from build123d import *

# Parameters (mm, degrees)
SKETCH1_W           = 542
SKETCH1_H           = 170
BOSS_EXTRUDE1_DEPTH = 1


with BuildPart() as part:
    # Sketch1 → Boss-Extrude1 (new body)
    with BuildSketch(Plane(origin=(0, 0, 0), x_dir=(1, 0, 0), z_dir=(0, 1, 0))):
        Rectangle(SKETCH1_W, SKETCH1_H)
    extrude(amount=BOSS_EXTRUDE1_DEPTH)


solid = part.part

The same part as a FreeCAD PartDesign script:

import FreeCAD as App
import Part
import Sketcher
Q = App.Units.Quantity

doc = App.newDocument("Part")
params = doc.addObject("Spreadsheet::Sheet", "Params")
for row, (alias, value) in enumerate([
    ("sketch1_width", "542 mm"),
    ("sketch1_height", "170 mm"),
    ("pad1_length", "1 mm"),
], start=1):
    params.set(f"A{row}", alias)
    params.set(f"B{row}", "=" + value)
    params.setAlias(f"B{row}", alias)

body = doc.addObject("PartDesign::Body", "Body")

# Sketch on XZ plane
sketch1 = body.newObject("Sketcher::SketchObject", "Sketch")
sketch1.AttachmentSupport = (doc.getObject("XZ_Plane"), [""])
sketch1.MapMode = "FlatFace"
sketch1.addGeometry(Part.LineSegment(App.Vector(-271, -85, 0), App.Vector(-271, 85, 0)), False)
sketch1.addGeometry(Part.LineSegment(App.Vector(-271, 85, 0), App.Vector(271, 85, 0)), False)
sketch1.addGeometry(Part.LineSegment(App.Vector(271, 85, 0), App.Vector(271, -85, 0)), False)
sketch1.addGeometry(Part.LineSegment(App.Vector(271, -85, 0), App.Vector(-271, -85, 0)), False)
sketch1.addConstraint(Sketcher.Constraint("Coincident", 0, 2, 1, 1))
sketch1.addConstraint(Sketcher.Constraint("Coincident", 1, 2, 2, 1))
sketch1.addConstraint(Sketcher.Constraint("Coincident", 2, 2, 3, 1))
sketch1.addConstraint(Sketcher.Constraint("Coincident", 3, 2, 0, 1))
sketch1.addConstraint(Sketcher.Constraint("Vertical", 0))
sketch1.addConstraint(Sketcher.Constraint("Horizontal", 1))
sketch1.addConstraint(Sketcher.Constraint("Vertical", 2))
sketch1.addConstraint(Sketcher.Constraint("Horizontal", 3))
sketch1.addConstraint(Sketcher.Constraint("Symmetric", 0, 2, 2, 2, -1, 1))
sketch1.addConstraint(Sketcher.Constraint("DistanceX", 1, 1, 1, 2, Q("542 mm")))
sketch1.addConstraint(Sketcher.Constraint("DistanceY", 0, 1, 0, 2, Q("170 mm")))
sketch1.setExpression("Constraints[9]", "Params.sketch1_width")
sketch1.setExpression("Constraints[10]", "Params.sketch1_height")
pad1 = body.newObject("PartDesign::Pad", "Pad")
pad1.Profile = sketch1
pad1.setExpression("Length", "Params.pad1_length")
pad1.Reversed = True

doc.recompute()
